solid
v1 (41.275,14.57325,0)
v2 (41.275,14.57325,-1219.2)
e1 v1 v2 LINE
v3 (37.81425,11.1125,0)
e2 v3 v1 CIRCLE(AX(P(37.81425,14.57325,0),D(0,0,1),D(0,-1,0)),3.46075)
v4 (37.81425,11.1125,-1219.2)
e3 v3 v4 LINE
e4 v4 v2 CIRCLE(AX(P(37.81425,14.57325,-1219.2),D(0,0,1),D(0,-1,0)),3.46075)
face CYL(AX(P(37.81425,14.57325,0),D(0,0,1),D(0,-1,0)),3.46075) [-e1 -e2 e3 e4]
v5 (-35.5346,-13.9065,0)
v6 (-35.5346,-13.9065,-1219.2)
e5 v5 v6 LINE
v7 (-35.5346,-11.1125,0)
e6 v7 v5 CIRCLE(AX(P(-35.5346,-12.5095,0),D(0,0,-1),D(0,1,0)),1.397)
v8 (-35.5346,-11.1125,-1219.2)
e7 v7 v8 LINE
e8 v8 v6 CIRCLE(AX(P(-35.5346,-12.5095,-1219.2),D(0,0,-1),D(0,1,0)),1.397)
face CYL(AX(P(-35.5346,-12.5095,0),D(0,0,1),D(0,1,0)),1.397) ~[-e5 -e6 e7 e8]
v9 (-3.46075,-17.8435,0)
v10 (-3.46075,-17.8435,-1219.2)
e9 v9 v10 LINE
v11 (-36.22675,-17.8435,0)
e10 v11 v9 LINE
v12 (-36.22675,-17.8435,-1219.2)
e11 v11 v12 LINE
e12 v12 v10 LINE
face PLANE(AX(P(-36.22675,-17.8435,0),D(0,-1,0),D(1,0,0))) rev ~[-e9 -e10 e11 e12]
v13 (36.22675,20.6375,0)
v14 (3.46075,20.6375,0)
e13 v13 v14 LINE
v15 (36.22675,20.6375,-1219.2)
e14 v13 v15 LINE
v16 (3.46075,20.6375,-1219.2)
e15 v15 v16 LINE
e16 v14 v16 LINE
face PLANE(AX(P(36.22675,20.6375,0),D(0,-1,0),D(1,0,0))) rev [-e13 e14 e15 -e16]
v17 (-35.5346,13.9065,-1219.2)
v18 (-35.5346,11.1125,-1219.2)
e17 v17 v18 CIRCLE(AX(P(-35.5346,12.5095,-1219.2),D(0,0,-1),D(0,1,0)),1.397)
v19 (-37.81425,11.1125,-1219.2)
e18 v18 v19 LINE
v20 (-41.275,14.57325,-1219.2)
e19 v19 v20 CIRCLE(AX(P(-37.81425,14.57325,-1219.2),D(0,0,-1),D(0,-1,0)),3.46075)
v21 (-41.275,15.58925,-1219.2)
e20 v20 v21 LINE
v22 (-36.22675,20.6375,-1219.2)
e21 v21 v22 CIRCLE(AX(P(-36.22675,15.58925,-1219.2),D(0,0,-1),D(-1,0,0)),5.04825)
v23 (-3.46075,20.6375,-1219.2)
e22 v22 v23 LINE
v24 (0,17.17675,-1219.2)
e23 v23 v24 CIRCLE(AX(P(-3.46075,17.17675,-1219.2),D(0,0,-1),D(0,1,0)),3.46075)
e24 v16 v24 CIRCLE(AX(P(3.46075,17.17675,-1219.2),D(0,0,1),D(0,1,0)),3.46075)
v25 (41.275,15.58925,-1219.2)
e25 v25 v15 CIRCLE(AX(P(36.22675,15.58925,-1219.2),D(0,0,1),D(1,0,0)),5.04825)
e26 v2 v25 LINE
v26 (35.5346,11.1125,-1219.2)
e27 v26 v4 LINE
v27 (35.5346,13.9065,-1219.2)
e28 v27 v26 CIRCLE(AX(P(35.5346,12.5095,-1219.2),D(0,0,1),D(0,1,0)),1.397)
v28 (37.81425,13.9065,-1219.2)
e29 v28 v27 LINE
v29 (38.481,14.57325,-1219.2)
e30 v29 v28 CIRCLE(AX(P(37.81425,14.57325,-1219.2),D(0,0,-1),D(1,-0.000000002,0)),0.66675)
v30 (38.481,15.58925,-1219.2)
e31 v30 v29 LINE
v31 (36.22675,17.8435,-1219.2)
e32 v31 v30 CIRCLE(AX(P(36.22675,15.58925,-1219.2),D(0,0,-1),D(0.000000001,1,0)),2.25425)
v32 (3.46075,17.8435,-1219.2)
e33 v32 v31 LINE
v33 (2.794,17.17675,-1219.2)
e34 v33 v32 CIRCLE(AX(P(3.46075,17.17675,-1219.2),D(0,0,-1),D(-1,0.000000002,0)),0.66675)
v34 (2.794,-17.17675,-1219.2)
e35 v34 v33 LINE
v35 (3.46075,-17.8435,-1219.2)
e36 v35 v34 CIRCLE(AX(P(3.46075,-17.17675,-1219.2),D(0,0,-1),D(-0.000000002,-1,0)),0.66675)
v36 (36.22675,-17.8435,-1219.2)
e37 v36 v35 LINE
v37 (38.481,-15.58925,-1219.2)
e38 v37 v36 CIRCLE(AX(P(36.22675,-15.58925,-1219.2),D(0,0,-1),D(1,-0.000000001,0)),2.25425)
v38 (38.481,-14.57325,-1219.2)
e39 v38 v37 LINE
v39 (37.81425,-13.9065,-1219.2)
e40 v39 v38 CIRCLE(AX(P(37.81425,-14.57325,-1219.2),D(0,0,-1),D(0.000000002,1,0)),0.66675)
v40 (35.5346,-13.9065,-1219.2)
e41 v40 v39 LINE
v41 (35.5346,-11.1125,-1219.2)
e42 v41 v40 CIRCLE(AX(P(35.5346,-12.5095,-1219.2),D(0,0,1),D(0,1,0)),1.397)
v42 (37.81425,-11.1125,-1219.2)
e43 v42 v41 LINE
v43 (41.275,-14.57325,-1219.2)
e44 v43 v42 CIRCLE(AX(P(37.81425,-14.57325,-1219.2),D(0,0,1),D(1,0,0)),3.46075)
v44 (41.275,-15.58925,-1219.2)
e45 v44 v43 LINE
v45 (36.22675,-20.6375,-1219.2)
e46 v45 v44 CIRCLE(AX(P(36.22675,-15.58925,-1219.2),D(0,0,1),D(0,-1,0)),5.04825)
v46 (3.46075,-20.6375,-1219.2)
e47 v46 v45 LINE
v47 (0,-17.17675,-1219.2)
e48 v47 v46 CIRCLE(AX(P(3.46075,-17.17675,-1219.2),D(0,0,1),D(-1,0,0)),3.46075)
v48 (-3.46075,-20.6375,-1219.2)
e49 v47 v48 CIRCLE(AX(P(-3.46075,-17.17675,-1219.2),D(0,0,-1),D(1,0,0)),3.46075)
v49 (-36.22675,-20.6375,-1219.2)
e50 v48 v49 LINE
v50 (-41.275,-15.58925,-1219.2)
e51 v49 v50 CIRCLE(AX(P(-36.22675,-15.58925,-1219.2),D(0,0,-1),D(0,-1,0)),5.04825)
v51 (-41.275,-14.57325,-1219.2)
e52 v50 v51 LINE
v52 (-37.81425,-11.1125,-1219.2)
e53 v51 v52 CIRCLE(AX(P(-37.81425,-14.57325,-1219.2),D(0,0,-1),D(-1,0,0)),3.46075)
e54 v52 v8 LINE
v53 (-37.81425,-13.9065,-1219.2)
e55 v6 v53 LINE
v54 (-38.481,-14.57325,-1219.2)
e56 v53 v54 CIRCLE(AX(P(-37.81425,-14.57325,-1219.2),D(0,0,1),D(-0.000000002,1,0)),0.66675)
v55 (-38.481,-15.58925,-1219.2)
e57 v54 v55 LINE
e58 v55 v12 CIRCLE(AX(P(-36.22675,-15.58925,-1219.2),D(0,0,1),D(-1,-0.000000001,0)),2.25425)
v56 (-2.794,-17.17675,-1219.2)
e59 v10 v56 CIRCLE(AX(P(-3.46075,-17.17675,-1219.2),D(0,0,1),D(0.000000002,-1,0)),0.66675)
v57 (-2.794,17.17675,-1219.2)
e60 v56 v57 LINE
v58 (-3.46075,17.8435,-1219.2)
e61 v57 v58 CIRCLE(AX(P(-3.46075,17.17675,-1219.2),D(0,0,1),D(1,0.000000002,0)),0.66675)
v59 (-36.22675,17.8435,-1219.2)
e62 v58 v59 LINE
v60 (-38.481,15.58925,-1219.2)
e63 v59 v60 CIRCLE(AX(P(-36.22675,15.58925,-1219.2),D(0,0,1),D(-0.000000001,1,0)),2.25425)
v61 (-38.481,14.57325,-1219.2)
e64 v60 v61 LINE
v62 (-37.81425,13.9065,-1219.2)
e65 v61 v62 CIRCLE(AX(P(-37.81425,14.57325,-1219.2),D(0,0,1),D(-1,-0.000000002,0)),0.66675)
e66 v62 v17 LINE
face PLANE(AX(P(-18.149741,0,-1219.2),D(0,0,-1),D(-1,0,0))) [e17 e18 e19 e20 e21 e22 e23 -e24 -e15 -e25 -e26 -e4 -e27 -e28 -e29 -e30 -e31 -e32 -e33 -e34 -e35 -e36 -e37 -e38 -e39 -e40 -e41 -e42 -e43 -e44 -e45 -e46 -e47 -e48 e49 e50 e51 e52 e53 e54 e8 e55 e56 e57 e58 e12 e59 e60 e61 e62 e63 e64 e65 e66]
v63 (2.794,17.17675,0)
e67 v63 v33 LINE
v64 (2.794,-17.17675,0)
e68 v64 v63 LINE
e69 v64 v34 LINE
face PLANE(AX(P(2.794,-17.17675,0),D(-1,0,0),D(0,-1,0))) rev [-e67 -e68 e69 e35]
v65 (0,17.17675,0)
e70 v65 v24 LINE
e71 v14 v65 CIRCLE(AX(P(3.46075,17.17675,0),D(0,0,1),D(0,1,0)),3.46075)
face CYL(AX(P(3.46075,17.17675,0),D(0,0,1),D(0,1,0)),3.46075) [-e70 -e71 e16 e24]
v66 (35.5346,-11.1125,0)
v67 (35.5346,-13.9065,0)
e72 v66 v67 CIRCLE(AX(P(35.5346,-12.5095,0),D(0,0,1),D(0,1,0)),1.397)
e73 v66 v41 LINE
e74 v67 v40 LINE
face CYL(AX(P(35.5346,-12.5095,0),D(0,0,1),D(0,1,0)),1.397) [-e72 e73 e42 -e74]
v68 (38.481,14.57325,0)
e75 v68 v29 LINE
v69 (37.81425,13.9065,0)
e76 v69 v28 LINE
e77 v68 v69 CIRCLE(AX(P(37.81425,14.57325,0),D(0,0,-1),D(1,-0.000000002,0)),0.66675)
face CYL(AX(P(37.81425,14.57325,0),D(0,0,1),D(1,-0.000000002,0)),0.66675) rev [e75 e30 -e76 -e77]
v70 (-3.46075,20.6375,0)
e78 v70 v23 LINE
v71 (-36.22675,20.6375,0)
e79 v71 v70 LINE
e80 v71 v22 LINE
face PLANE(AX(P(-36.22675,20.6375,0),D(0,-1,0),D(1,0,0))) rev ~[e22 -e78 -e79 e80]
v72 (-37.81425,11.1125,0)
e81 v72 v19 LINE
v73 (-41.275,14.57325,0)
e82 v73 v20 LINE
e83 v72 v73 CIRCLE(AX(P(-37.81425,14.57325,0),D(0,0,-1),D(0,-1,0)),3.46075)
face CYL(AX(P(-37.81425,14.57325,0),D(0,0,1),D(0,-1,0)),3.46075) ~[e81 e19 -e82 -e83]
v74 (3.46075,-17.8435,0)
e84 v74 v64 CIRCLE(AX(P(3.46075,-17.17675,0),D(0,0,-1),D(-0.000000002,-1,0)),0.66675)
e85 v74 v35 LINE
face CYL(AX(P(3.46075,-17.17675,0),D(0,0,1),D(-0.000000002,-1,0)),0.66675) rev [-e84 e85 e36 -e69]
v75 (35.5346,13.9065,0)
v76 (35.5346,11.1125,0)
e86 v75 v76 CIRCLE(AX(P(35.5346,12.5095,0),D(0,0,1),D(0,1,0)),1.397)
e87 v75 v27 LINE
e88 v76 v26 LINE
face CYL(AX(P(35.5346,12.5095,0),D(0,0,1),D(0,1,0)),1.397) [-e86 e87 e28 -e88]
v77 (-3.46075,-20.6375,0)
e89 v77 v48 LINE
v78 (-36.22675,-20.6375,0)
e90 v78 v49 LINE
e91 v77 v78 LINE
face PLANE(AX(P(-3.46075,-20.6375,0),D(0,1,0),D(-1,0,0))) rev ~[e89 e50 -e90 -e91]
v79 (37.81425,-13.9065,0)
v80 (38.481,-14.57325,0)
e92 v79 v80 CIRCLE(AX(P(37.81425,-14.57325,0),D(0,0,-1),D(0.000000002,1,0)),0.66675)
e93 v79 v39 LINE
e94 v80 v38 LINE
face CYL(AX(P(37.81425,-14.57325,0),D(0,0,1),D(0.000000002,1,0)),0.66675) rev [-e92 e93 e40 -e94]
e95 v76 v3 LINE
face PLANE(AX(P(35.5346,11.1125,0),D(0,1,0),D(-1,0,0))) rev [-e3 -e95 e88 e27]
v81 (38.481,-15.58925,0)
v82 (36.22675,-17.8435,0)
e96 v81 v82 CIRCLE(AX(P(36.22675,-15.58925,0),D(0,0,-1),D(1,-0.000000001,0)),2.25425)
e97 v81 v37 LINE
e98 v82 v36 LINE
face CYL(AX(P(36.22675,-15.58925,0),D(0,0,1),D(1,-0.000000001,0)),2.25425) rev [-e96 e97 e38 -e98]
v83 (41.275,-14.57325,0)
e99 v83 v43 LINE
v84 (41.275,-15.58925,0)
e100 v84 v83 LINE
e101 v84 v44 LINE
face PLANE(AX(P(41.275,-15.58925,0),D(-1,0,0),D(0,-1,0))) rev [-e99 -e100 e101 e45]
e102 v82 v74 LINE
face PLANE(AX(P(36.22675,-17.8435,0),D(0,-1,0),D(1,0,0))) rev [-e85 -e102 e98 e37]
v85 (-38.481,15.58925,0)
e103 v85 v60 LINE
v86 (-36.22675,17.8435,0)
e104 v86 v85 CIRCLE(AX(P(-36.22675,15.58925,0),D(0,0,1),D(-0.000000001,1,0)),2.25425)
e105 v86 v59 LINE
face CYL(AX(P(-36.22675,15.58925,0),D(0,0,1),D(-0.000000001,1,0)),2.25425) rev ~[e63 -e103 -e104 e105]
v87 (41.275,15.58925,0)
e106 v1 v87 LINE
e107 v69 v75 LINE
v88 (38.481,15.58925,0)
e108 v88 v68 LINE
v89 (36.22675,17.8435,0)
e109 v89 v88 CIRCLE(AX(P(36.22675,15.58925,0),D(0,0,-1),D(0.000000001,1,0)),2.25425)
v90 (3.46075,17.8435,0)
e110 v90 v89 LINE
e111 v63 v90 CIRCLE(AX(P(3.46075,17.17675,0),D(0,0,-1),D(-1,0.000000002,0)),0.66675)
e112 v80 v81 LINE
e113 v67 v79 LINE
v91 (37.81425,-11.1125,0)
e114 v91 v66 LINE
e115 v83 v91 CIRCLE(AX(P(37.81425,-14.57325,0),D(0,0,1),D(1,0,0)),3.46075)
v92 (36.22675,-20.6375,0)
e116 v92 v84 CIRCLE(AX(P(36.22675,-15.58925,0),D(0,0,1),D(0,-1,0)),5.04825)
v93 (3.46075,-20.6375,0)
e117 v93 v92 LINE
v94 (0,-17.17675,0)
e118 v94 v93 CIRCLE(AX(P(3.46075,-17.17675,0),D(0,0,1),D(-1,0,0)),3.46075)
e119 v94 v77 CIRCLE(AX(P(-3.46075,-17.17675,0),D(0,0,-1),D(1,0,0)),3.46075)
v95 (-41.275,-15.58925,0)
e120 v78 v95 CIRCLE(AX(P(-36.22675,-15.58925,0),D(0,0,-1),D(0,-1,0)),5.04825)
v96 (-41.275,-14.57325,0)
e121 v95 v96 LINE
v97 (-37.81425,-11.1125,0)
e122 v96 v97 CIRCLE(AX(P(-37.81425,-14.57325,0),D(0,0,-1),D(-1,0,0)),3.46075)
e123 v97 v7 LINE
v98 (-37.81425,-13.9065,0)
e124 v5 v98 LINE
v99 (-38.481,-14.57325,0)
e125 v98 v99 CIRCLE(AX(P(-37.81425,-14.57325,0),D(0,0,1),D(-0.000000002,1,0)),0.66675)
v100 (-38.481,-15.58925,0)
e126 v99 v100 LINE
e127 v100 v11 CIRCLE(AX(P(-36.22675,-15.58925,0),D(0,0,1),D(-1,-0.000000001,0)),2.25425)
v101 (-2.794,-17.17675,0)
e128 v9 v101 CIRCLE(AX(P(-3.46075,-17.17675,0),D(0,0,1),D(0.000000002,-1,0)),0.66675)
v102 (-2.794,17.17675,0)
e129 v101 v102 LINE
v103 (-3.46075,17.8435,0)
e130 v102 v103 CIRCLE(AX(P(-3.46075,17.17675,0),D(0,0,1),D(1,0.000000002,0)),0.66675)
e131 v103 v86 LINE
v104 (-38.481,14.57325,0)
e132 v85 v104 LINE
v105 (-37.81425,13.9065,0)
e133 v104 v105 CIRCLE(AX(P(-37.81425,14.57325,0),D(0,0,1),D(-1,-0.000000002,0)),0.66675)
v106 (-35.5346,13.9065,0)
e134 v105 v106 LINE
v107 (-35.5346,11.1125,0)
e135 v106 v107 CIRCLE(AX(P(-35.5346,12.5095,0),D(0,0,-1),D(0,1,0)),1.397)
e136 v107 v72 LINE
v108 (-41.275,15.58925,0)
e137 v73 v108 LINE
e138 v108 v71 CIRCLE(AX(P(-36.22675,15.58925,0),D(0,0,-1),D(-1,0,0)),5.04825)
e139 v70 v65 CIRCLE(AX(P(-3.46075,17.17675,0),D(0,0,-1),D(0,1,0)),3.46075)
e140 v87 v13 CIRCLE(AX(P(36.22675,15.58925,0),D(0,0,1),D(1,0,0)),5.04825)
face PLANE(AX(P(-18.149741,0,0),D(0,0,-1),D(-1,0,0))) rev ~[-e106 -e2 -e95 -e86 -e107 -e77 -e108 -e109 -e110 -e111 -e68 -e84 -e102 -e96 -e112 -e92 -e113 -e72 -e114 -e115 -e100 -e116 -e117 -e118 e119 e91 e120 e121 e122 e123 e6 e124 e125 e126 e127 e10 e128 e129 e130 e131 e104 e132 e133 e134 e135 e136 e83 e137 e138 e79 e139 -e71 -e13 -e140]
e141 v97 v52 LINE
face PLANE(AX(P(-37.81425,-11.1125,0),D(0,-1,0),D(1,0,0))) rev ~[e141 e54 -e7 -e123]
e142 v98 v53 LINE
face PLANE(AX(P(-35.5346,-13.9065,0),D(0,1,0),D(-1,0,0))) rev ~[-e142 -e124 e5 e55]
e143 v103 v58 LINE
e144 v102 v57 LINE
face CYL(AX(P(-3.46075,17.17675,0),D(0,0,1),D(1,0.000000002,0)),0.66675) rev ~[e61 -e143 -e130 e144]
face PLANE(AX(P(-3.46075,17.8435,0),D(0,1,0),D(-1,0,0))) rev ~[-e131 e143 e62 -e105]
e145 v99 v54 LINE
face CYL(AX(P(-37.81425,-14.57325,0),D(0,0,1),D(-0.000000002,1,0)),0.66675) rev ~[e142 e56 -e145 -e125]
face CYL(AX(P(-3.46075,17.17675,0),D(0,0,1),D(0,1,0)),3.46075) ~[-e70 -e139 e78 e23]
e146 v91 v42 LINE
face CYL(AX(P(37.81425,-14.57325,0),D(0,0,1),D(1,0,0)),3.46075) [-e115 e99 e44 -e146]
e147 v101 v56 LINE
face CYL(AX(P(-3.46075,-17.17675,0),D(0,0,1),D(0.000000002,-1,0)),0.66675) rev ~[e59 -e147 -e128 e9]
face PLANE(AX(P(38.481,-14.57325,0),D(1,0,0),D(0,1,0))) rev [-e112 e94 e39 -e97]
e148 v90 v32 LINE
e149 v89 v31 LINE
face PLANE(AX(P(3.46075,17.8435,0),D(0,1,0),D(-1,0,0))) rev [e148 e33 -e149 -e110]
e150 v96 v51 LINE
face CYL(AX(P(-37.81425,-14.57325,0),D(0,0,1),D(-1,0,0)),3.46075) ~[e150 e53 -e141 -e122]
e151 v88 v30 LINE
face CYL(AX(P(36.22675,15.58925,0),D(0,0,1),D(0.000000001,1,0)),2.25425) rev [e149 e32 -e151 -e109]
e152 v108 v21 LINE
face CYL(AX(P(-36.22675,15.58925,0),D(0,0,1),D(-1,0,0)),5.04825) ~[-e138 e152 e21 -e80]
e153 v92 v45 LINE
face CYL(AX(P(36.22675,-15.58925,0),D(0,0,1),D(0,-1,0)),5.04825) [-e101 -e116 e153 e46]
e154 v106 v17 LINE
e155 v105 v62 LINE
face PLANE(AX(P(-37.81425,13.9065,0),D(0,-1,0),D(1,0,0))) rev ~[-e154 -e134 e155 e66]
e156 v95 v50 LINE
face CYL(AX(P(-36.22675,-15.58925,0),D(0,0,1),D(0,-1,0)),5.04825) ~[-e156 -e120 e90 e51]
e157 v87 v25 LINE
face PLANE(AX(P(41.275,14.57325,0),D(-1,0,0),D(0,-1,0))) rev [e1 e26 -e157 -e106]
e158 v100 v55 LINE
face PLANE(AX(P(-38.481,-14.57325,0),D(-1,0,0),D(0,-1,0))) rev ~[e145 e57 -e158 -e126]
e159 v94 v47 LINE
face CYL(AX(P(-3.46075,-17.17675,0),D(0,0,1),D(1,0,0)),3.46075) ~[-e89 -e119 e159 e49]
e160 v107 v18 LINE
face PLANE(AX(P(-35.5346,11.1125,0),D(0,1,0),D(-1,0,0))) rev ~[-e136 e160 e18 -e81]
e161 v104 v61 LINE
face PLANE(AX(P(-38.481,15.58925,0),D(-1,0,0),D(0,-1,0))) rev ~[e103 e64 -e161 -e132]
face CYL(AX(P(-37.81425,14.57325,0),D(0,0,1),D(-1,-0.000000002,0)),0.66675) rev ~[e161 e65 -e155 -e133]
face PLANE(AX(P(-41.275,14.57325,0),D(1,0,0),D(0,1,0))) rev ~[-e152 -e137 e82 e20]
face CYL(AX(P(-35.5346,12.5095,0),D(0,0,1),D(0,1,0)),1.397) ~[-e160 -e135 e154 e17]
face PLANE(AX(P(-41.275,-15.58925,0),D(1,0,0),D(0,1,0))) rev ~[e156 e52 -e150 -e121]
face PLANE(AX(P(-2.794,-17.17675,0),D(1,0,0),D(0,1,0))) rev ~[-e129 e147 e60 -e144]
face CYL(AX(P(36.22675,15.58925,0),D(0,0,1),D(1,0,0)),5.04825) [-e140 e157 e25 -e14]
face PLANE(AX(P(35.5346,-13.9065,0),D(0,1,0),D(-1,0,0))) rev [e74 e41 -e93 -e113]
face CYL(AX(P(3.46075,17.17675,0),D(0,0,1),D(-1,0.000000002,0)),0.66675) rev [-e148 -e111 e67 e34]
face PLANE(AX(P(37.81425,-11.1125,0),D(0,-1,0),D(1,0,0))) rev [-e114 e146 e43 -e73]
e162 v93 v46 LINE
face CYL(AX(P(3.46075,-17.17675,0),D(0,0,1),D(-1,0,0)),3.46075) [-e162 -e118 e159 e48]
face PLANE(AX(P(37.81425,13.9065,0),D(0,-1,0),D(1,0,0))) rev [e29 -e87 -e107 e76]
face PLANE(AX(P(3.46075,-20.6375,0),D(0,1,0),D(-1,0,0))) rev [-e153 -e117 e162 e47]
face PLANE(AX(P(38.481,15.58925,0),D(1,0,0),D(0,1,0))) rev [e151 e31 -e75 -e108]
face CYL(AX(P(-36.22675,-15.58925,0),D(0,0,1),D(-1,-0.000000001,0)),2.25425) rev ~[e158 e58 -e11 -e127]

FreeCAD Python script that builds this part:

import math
import FreeCAD as App
import Part
import Sketcher

V = App.Vector
Q = App.Units.Quantity

doc = App.newDocument("Part")
body = doc.addObject("PartDesign::Body", "Body")

# Sketch on XY plane
sketch1 = doc.addObject("Sketcher::SketchObject", "Sketch")
body.addObject(sketch1)
sketch1.AttachmentSupport = (doc.XY_Plane, [""])
sketch1.MapMode = "FlatFace"
sketch1.addGeometry([
    Part.LineSegment(V(-3.5, 20.6, 0), V(-36.2, 20.6, 0)),  # 0
    Part.ArcOfCircle(Part.Circle(V(-36.2, 15.6, 0), V(0, 0, 1), 5), math.radians(90), math.radians(180)),  # 1
    Part.LineSegment(V(-41.3, 15.6, 0), V(-41.3, 14.6, 0)),  # 2
    Part.ArcOfCircle(Part.Circle(V(-37.8, 14.6, 0), V(0, 0, 1), 3.5), math.radians(180), math.radians(270)),  # 3
    Part.LineSegment(V(-37.8, 11.1, 0), V(-35.5, 11.1, 0)),  # 4
    Part.ArcOfCircle(Part.Circle(V(-35.5, 12.5, 0), V(0, 0, 1), 1.4), math.radians(-90), math.radians(90)),  # 5
    Part.LineSegment(V(-35.5, 13.9, 0), V(-37.8, 13.9, 0)),  # 6
    Part.ArcOfCircle(Part.Circle(V(-37.8, 14.6, 0), V(0, 0, 1), 0.7), math.radians(-180), math.radians(-90)),  # 7
    Part.LineSegment(V(-38.5, 14.6, 0), V(-38.5, 15.6, 0)),  # 8
    Part.ArcOfCircle(Part.Circle(V(-36.2, 15.6, 0), V(0, 0, 1), 2.3), math.radians(90), math.radians(180)),  # 9
    Part.LineSegment(V(-36.2, 17.8, 0), V(-3.5, 17.8, 0)),  # 10
    Part.ArcOfCircle(Part.Circle(V(-3.5, 17.2, 0), V(0, 0, 1), 0.7), math.radians(0), math.radians(90)),  # 11
    Part.LineSegment(V(-2.8, 17.2, 0), V(-2.8, -17.2, 0)),  # 12
    Part.ArcOfCircle(Part.Circle(V(-3.5, -17.2, 0), V(0, 0, 1), 0.7), math.radians(-90), math.radians(0)),  # 13
    Part.LineSegment(V(-3.5, -17.8, 0), V(-36.2, -17.8, 0)),  # 14
    Part.ArcOfCircle(Part.Circle(V(-36.2, -15.6, 0), V(0, 0, 1), 2.3), math.radians(-180), math.radians(-90)),  # 15
    Part.LineSegment(V(-38.5, -15.6, 0), V(-38.5, -14.6, 0)),  # 16
    Part.ArcOfCircle(Part.Circle(V(-37.8, -14.6, 0), V(0, 0, 1), 0.7), math.radians(90), math.radians(180)),  # 17
    Part.LineSegment(V(-37.8, -13.9, 0), V(-35.5, -13.9, 0)),  # 18
    Part.ArcOfCircle(Part.Circle(V(-35.5, -12.5, 0), V(0, 0, 1), 1.4), math.radians(-90), math.radians(90)),  # 19
    Part.LineSegment(V(-35.5, -11.1, 0), V(-37.8, -11.1, 0)),  # 20
    Part.ArcOfCircle(Part.Circle(V(-37.8, -14.6, 0), V(0, 0, 1), 3.5), math.radians(90), math.radians(180)),  # 21
    Part.LineSegment(V(-41.3, -14.6, 0), V(-41.3, -15.6, 0)),  # 22
    Part.ArcOfCircle(Part.Circle(V(-36.2, -15.6, 0), V(0, 0, 1), 5), math.radians(180), math.radians(270)),  # 23
    Part.LineSegment(V(-36.2, -20.6, 0), V(-3.5, -20.6, 0)),  # 24
    Part.ArcOfCircle(Part.Circle(V(-3.5, -17.2, 0), V(0, 0, 1), 3.5), math.radians(-90), math.radians(0)),  # 25
    Part.LineSegment(V(0, -17.2, 0), V(0, 17.2, 0)),  # 26
    Part.ArcOfCircle(Part.Circle(V(-3.5, 17.2, 0), V(0, 0, 1), 3.5), math.radians(0), math.radians(90)),  # 27
], False)
sketch1.addConstraint([
    Sketcher.Constraint("Tangent", 0, 2, 1, 1),
    Sketcher.Constraint("Tangent", 1, 2, 2, 1),
    Sketcher.Constraint("Tangent", 2, 2, 3, 1),
    Sketcher.Constraint("Tangent", 3, 2, 4, 1),
    Sketcher.Constraint("Tangent", 4, 2, 5, 1),
    Sketcher.Constraint("Tangent", 5, 2, 6, 1),
    Sketcher.Constraint("Tangent", 6, 2, 7, 2),
    Sketcher.Constraint("Tangent", 7, 1, 8, 1),
    Sketcher.Constraint("Tangent", 8, 2, 9, 2),
    Sketcher.Constraint("Tangent", 9, 1, 10, 1),
    Sketcher.Constraint("Tangent", 10, 2, 11, 2),
    Sketcher.Constraint("Tangent", 11, 1, 12, 1),
    Sketcher.Constraint("Tangent", 12, 2, 13, 2),
    Sketcher.Constraint("Tangent", 13, 1, 14, 1),
    Sketcher.Constraint("Tangent", 14, 2, 15, 2),
    Sketcher.Constraint("Tangent", 15, 1, 16, 1),
    Sketcher.Constraint("Tangent", 16, 2, 17, 2),
    Sketcher.Constraint("Tangent", 17, 1, 18, 1),
    Sketcher.Constraint("Tangent", 18, 2, 19, 1),
    Sketcher.Constraint("Tangent", 19, 2, 20, 1),
    Sketcher.Constraint("Tangent", 20, 2, 21, 1),
    Sketcher.Constraint("Tangent", 21, 2, 22, 1),
    Sketcher.Constraint("Tangent", 22, 2, 23, 1),
    Sketcher.Constraint("Tangent", 23, 2, 24, 1),
    Sketcher.Constraint("Tangent", 24, 2, 25, 1),
    Sketcher.Constraint("Tangent", 25, 2, 26, 1),
    Sketcher.Constraint("Tangent", 26, 2, 27, 1),
    Sketcher.Constraint("Tangent", 27, 2, 0, 1),
    Sketcher.Constraint("Horizontal", 0),
    Sketcher.Constraint("Vertical", 2),
    Sketcher.Constraint("Horizontal", 4),
    Sketcher.Constraint("Horizontal", 6),
    Sketcher.Constraint("Vertical", 8),
    Sketcher.Constraint("Horizontal", 10),
    Sketcher.Constraint("Vertical", 12),
    Sketcher.Constraint("Horizontal", 14),
    Sketcher.Constraint("Vertical", 16),
    Sketcher.Constraint("Horizontal", 18),
    Sketcher.Constraint("Horizontal", 20),
    Sketcher.Constraint("Vertical", 22),
    Sketcher.Constraint("Horizontal", 24),
    Sketcher.Constraint("Vertical", 26),
    Sketcher.Constraint("Coincident", 7, 3, 3, 3),
    Sketcher.Constraint("Coincident", 9, 3, 1, 3),
    Sketcher.Constraint("Coincident", 21, 3, 17, 3),
    Sketcher.Constraint("Coincident", 23, 3, 15, 3),
    Sketcher.Constraint("Coincident", 25, 3, 13, 3),
    Sketcher.Constraint("Coincident", 27, 3, 11, 3),
    Sketcher.Constraint("Equal", 7, 11),
    Sketcher.Constraint("Equal", 11, 13),
    Sketcher.Constraint("Equal", 9, 15),
    Sketcher.Constraint("Equal", 13, 17),
    Sketcher.Constraint("Symmetric", 25, 2, 26, 2, -1, 1),
    Sketcher.Constraint("Symmetric", 3, 3, 17, 3, -1),
    Sketcher.Constraint("Vertical", 5, 3, 19, 3),
    Sketcher.Constraint("Radius", 5, Q("0.055 in")),
    Sketcher.Constraint("DistanceX", 0, 2, 0, 1, Q("1.29 in")),
    Sketcher.Constraint("DistanceY", 2, 2, 2, 1, Q("0.04 in")),
    Sketcher.Constraint("DistanceY", 13, 3, 9, 3, Q("1.29 in")),
    Sketcher.Constraint("DistanceY", 5, 3, 0, 2, Q("0.32 in")),
    Sketcher.Constraint("DistanceY", 12, 2, 12, 1, Q("1.3525 in")),
    Sketcher.Constraint("DistanceX", 5, 3, -1, 1, Q("1.399 in")),
])
pad1 = doc.addObject("PartDesign::Pad", "Pad")
body.addObject(pad1)
pad1.Profile = sketch1
pad1.Length = Q("48 in")
pad1.Reversed = True
body2 = doc.addObject("PartDesign::Body", "Body001")
doc.recompute()

mirroring = doc.addObject("Part::Mirroring", "Mirroring")
mirroring.Source = body
mirroring.Base = V(0, 17.17675, -1219.2)
mirroring.Normal = V(1, 0, 0)
body2.BaseFeature = mirroring
doc.recompute()

boolean = doc.addObject("PartDesign::Boolean", "Boolean")
body2.addObject(boolean)
boolean.Type = "Fuse"
boolean.addObjects([body])
mirroring.Visibility = False

doc.recompute()
